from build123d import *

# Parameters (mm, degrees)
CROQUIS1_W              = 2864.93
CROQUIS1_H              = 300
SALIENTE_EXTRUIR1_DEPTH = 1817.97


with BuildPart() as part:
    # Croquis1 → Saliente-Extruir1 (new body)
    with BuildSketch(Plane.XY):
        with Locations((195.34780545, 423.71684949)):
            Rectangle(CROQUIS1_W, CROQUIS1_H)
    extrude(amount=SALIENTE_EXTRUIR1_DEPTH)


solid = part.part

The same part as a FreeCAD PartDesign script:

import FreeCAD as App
import Part
import Sketcher
from FreeCAD import Vector


def add_polygon(sketch, points):
    """Adds a closed chain of lines whose ends are joined by coincident constraints."""
    first, n = sketch.GeometryCount, len(points)
    for a, b in zip(points, points[1:] + points[:1]):
        sketch.addGeometry(Part.LineSegment(App.Vector(*a, 0), App.Vector(*b, 0)), False)
    for i in range(n):
        sketch.addConstraint(Sketcher.Constraint("Coincident", first + i, 2, first + (i + 1) % n, 1))

doc = App.newDocument("Part")
params = doc.addObject("Spreadsheet::Sheet", "Params")
for row, (alias, value) in enumerate([
    ("sketch1_height", "300 mm"),
    ("sketch1_width", "2864.93 mm"),
    ("pad1_length", "1817.97 mm"),
], start=1):
    params.set(f"A{row}", alias)
    params.set(f"B{row}", "=" + value)
    params.setAlias(f"B{row}", alias)

body = doc.addObject("PartDesign::Body", "Body")

# Sketch on XY plane
sketch1 = doc.addObject("Sketcher::SketchObject", "Sketch")
body.addObject(sketch1)
sketch1.AttachmentSupport = (doc.XY_Plane, [""])
sketch1.MapMode = "FlatFace"
add_polygon(sketch1, [(-1237, 574), (-1237, 274), (1628, 274), (1628, 574)])  # lines 0-3
sketch1.addConstraint(Sketcher.Constraint("Vertical", 0))
sketch1.addConstraint(Sketcher.Constraint("Horizontal", 1))
sketch1.addConstraint(Sketcher.Constraint("Vertical", 2))
sketch1.addConstraint(Sketcher.Constraint("Horizontal", 3))
sketch1.addConstraint(Sketcher.Constraint("DistanceY", 0, 2, 0, 1, 300.0))
sketch1.addConstraint(Sketcher.Constraint("DistanceX", 1, 1, 1, 2, 2864.93))
sketch1.addConstraint(Sketcher.Constraint("DistanceY", -1, 1, 0, 2, 273.716849))
sketch1.addConstraint(Sketcher.Constraint("DistanceX", 0, 2, -1, 1, 1237.117195))
sketch1.setExpression("Constraints[8]", "Params.sketch1_height")
sketch1.setExpression("Constraints[9]", "Params.sketch1_width")
pad1 = doc.addObject("PartDesign::Pad", "Pad")
body.addObject(pad1)
pad1.Profile = sketch1
pad1.setExpression("Length", "Params.pad1_length")

doc.recompute()
